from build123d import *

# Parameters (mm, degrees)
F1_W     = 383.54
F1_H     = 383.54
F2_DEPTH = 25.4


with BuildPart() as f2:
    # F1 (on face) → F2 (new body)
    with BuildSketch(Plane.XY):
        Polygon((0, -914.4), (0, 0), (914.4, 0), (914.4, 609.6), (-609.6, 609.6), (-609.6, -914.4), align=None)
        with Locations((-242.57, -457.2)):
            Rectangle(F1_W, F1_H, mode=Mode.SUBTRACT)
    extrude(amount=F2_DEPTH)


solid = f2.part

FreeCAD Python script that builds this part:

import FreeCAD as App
import Part
import Sketcher

V = App.Vector
Q = App.Units.Quantity


def add_polygon(sketch, points):
    """Adds a closed chain of lines whose ends are joined by coincident constraints."""
    first, n = sketch.GeometryCount, len(points)
    for a, b in zip(points, points[1:] + points[:1]):
        sketch.addGeometry(Part.LineSegment(App.Vector(*a, 0), App.Vector(*b, 0)), False)
    for i in range(n):
        sketch.addConstraint(Sketcher.Constraint("Coincident", first + i, 2, first + (i + 1) % n, 1))

doc = App.newDocument("Part")
body = doc.addObject("PartDesign::Body", "Body")

# Sketch on XY plane
sketch1 = body.newObject("Sketcher::SketchObject", "Sketch")
sketch1.AttachmentSupport = (doc.getObject("XY_Plane"), [""])
sketch1.MapMode = "FlatFace"
add_polygon(sketch1, [(0, -914), (0, 0), (914, 0), (914, 610), (-610, 610), (-610, -914)])  # lines 0-5
add_polygon(sketch1, [(-51, -649), (-434, -649), (-434, -265), (-51, -265)])  # lines 6-9
sketch1.addConstraint([
    Sketcher.Constraint("Vertical", 0),
    Sketcher.Constraint("Horizontal", 1),
    Sketcher.Constraint("Vertical", 2),
    Sketcher.Constraint("Horizontal", 3),
    Sketcher.Constraint("Vertical", 4),
    Sketcher.Constraint("Horizontal", 5),
    Sketcher.Constraint("Horizontal", 6),
    Sketcher.Constraint("Vertical", 7),
    Sketcher.Constraint("Horizontal", 8),
    Sketcher.Constraint("Vertical", 9),
    Sketcher.Constraint("Coincident", 0, 2, -1, 1),
    Sketcher.Constraint("Equal", 1, 0),
    Sketcher.Constraint("Equal", 5, 2),
    Sketcher.Constraint("Equal", 8, 7),
    Sketcher.Constraint("DistanceX", 1, 1, 1, 2, Q("36 in")),
    Sketcher.Constraint("DistanceX", 3, 2, 3, 1, Q("60 in")),
    Sketcher.Constraint("DistanceX", 6, 2, 6, 1, Q("15.1 in")),
    Sketcher.Constraint("DistanceX", 8, 2, -1, 1, Q("2 in")),
    Sketcher.Constraint("DistanceY", 6, 2, -1, 1, Q("25.55 in")),
])
pad1 = body.newObject("PartDesign::Pad", "Pad")
pad1.Profile = sketch1
pad1.Length = Q("1 in")

doc.recompute()
